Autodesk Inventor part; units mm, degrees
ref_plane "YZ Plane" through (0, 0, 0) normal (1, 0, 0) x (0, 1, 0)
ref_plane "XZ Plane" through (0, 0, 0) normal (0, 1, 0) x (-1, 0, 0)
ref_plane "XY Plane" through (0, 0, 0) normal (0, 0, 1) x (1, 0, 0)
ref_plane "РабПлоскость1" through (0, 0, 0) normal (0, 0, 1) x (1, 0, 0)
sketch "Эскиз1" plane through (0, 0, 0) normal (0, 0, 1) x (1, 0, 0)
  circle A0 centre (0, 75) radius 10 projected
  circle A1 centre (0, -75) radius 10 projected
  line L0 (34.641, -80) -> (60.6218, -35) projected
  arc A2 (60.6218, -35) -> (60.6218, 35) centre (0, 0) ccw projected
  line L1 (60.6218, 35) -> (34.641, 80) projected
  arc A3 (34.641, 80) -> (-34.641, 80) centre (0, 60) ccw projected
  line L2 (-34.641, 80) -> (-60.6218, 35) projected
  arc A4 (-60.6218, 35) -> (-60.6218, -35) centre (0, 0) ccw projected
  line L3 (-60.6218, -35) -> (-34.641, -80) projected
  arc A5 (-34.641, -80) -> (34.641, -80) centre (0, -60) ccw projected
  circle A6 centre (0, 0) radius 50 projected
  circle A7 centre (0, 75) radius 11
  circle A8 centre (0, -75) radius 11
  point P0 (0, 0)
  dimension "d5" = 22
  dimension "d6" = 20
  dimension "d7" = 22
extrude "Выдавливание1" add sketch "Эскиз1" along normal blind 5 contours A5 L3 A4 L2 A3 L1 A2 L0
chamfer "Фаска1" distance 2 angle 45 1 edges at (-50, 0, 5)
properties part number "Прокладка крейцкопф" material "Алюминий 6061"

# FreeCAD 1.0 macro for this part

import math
import FreeCAD as App
import Part
import Sketcher
from FreeCAD import Vector


def edges_at(feature, points):
    """Names of the edges that pass closest to the given points."""
    edges = feature.Shape.Edges
    near = lambda p: min(range(len(edges)), key=lambda i: edges[i].distToShape(Part.Vertex(*p))[0])
    return sorted({f"Edge{near(p) + 1}" for p in points})

doc = App.newDocument("Part")
params = doc.addObject("Spreadsheet::Sheet", "Params")
for row, (alias, value) in enumerate([
    ("sketch1_diameter", "22 mm"),
    ("sketch1_diameter2", "100 mm"),
    ("sketch1_radius", "40 mm"),
    ("sketch1_radius2", "70 mm"),
    ("sketch1_height", "20 mm"),
    ("pad1_length", "5 mm"),
    ("chamfer_size", "2 mm"),
], start=1):
    params.set(f"A{row}", alias)
    params.set(f"B{row}", "=" + value)
    params.setAlias(f"B{row}", alias)

body = doc.addObject("PartDesign::Body", "Body")

# Sketch on XY plane
sketch1 = doc.addObject("Sketcher::SketchObject", "Sketch")
body.addObject(sketch1)
sketch1.AttachmentSupport = (doc.XY_Plane, [""])
sketch1.MapMode = "FlatFace"
sketch1.addGeometry([
    Part.ArcOfCircle(Part.Circle(Vector(0, -60, 0), Vector(0, 0, 1), 40), math.radians(-150), math.radians(-30)),  # 0
    Part.LineSegment(Vector(35, -80, 0), Vector(61, -35, 0)),  # 1
    Part.ArcOfCircle(Part.Circle(Vector(0, 0, 0), Vector(0, 0, 1), 70), math.radians(-30), math.radians(30)),  # 2
    Part.LineSegment(Vector(61, 35, 0), Vector(35, 80, 0)),  # 3
    Part.ArcOfCircle(Part.Circle(Vector(0, 60, 0), Vector(0, 0, 1), 40), math.radians(30), math.radians(150)),  # 4
    Part.LineSegment(Vector(-35, 80, 0), Vector(-61, 35, 0)),  # 5
    Part.ArcOfCircle(Part.Circle(Vector(0, 0, 0), Vector(0, 0, 1), 70), math.radians(150), math.radians(210)),  # 6
    Part.LineSegment(Vector(-61, -35, 0), Vector(-35, -80, 0)),  # 7
    Part.Circle(Vector(0, -75, 0), Vector(0, 0, 1), 11),  # 8
    Part.Circle(Vector(0, 0, 0), Vector(0, 0, 1), 50),  # 9
    Part.Circle(Vector(0, 75, 0), Vector(0, 0, 1), 11),  # 10
], False)
sketch1.addConstraint([
    Sketcher.Constraint("Tangent", 0, 2, 1, 1),
    Sketcher.Constraint("Tangent", 1, 2, 2, 1),
    Sketcher.Constraint("Tangent", 2, 2, 3, 1),
    Sketcher.Constraint("Tangent", 3, 2, 4, 1),
    Sketcher.Constraint("Tangent", 4, 2, 5, 1),
    Sketcher.Constraint("Tangent", 5, 2, 6, 1),
    Sketcher.Constraint("Tangent", 6, 2, 7, 1),
    Sketcher.Constraint("Tangent", 7, 2, 0, 1),
    Sketcher.Constraint("Coincident", 2, 3, -1, 1),
    Sketcher.Constraint("Coincident", 6, 3, -1, 1),
    Sketcher.Constraint("Coincident", 9, 3, -1, 1),
    Sketcher.Constraint("Equal", 0, 4),
    Sketcher.Constraint("Equal", 2, 6),
    Sketcher.Constraint("Equal", 8, 10),
    Sketcher.Constraint("Symmetric", 0, 3, 4, 3, -1, 1),
    Sketcher.Constraint("Symmetric", 8, 3, 10, 3, -1, 1),
    Sketcher.Constraint("PointOnObject", 0, 3, -2),
    Sketcher.Constraint("PointOnObject", 8, 3, -2),
    Sketcher.Constraint("Diameter", 8, 22.0),
    Sketcher.Constraint("Diameter", 9, 100.0),
    Sketcher.Constraint("Radius", 0, 40.0),
    Sketcher.Constraint("Radius", 2, 70.0),
    Sketcher.Constraint("DistanceY", 0, 2, 0, 3, 20.0),
    Sketcher.Constraint("DistanceY", 8, 3, -1, 1, 75.0),
])
sketch1.setExpression("Constraints[18]", "Params.sketch1_diameter")
sketch1.setExpression("Constraints[19]", "Params.sketch1_diameter2")
sketch1.setExpression("Constraints[20]", "Params.sketch1_radius")
sketch1.setExpression("Constraints[21]", "Params.sketch1_radius2")
sketch1.setExpression("Constraints[22]", "Params.sketch1_height")
pad1 = doc.addObject("PartDesign::Pad", "Pad")
body.addObject(pad1)
pad1.Profile = sketch1
pad1.setExpression("Length", "Params.pad1_length")
doc.recompute()

chamfer = doc.addObject("PartDesign::Chamfer", "Chamfer")
body.addObject(chamfer)
chamfer.Base = (pad1, edges_at(pad1, [(-50, 0, 5)]))
chamfer.setExpression("Size", "Params.chamfer_size")

doc.recompute()
